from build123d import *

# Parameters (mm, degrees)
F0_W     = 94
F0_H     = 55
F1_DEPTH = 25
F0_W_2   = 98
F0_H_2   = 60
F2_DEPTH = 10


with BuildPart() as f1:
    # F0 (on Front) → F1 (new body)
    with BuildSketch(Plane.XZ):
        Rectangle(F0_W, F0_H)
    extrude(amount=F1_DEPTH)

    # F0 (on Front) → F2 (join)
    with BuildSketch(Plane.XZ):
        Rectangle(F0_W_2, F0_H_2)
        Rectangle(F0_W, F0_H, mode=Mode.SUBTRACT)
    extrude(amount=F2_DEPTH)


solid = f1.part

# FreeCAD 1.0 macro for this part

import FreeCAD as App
import Part
import Sketcher

doc = App.newDocument("Part")
body = doc.addObject("PartDesign::Body", "Body")

sketch1 = body.newObject("Sketcher::SketchObject", "Sketch")
sketch1.AttachmentSupport = (doc.getObject("XZ_Plane"), [""])
sketch1.MapMode = "FlatFace"
sketch1.addGeometry([
    Part.LineSegment(App.Vector(-47, 27.5, 0), App.Vector(-47, -27.5, 0)),
    Part.LineSegment(App.Vector(-47, -27.5, 0), App.Vector(47, -27.5, 0)),
    Part.LineSegment(App.Vector(47, -27.5, 0), App.Vector(47, 27.5, 0)),
    Part.LineSegment(App.Vector(47, 27.5, 0), App.Vector(-47, 27.5, 0)),
], False)
sketch1.addConstraint([
    Sketcher.Constraint("Coincident", 0, 2, 1, 1),
    Sketcher.Constraint("Coincident", 1, 2, 2, 1),
    Sketcher.Constraint("Coincident", 2, 2, 3, 1),
    Sketcher.Constraint("Coincident", 3, 2, 0, 1),
    Sketcher.Constraint("Vertical", 0),
    Sketcher.Constraint("Horizontal", 1),
    Sketcher.Constraint("Vertical", 2),
    Sketcher.Constraint("Horizontal", 3),
    Sketcher.Constraint("Symmetric", 0, 2, 2, 2, -1, 1),
    Sketcher.Constraint("DistanceX", 1, 1, 1, 2, 94.0),
    Sketcher.Constraint("DistanceY", 0, 2, 0, 1, 55.0),
])
pad1 = body.newObject("PartDesign::Pad", "Pad")
pad1.Profile = sketch1
pad1.Length = 25

sketch2 = body.newObject("Sketcher::SketchObject", "Sketch001")
sketch2.AttachmentSupport = (doc.getObject("XZ_Plane"), [""])
sketch2.MapMode = "FlatFace"
sketch2.addGeometry([
    Part.LineSegment(App.Vector(-49, 30, 0), App.Vector(-49, -30, 0)),
    Part.LineSegment(App.Vector(-49, -30, 0), App.Vector(49, -30, 0)),
    Part.LineSegment(App.Vector(49, -30, 0), App.Vector(49, 30, 0)),
    Part.LineSegment(App.Vector(49, 30, 0), App.Vector(-49, 30, 0)),
    Part.LineSegment(App.Vector(47, -27.5, 0), App.Vector(-47, -27.5, 0)),
    Part.LineSegment(App.Vector(-47, -27.5, 0), App.Vector(-47, 27.5, 0)),
    Part.LineSegment(App.Vector(-47, 27.5, 0), App.Vector(47, 27.5, 0)),
    Part.LineSegment(App.Vector(47, 27.5, 0), App.Vector(47, -27.5, 0)),
], False)
sketch2.addConstraint([
    Sketcher.Constraint("Coincident", 0, 2, 1, 1),
    Sketcher.Constraint("Coincident", 1, 2, 2, 1),
    Sketcher.Constraint("Coincident", 2, 2, 3, 1),
    Sketcher.Constraint("Coincident", 3, 2, 0, 1),
    Sketcher.Constraint("Coincident", 4, 2, 5, 1),
    Sketcher.Constraint("Coincident", 5, 2, 6, 1),
    Sketcher.Constraint("Coincident", 6, 2, 7, 1),
    Sketcher.Constraint("Coincident", 7, 2, 4, 1),
    Sketcher.Constraint("Vertical", 0),
    Sketcher.Constraint("Horizontal", 1),
    Sketcher.Constraint("Vertical", 2),
    Sketcher.Constraint("Horizontal", 3),
    Sketcher.Constraint("Horizontal", 4),
    Sketcher.Constraint("Vertical", 5),
    Sketcher.Constraint("Horizontal", 6),
    Sketcher.Constraint("Vertical", 7),
    Sketcher.Constraint("Symmetric", 0, 2, 2, 2, -1, 1),
    Sketcher.Constraint("Symmetric", 4, 2, 6, 2, -1, 1),
    Sketcher.Constraint("DistanceX", 1, 1, 1, 2, 98.0),
    Sketcher.Constraint("DistanceX", 4, 2, 4, 1, 94.0),
    Sketcher.Constraint("DistanceY", 0, 2, 0, 1, 60.0),
    Sketcher.Constraint("DistanceY", 5, 1, 5, 2, 55.0),
])
pad2 = body.newObject("PartDesign::Pad", "Pad001")
pad2.Profile = sketch2
pad2.Length = 10

doc.recompute()
